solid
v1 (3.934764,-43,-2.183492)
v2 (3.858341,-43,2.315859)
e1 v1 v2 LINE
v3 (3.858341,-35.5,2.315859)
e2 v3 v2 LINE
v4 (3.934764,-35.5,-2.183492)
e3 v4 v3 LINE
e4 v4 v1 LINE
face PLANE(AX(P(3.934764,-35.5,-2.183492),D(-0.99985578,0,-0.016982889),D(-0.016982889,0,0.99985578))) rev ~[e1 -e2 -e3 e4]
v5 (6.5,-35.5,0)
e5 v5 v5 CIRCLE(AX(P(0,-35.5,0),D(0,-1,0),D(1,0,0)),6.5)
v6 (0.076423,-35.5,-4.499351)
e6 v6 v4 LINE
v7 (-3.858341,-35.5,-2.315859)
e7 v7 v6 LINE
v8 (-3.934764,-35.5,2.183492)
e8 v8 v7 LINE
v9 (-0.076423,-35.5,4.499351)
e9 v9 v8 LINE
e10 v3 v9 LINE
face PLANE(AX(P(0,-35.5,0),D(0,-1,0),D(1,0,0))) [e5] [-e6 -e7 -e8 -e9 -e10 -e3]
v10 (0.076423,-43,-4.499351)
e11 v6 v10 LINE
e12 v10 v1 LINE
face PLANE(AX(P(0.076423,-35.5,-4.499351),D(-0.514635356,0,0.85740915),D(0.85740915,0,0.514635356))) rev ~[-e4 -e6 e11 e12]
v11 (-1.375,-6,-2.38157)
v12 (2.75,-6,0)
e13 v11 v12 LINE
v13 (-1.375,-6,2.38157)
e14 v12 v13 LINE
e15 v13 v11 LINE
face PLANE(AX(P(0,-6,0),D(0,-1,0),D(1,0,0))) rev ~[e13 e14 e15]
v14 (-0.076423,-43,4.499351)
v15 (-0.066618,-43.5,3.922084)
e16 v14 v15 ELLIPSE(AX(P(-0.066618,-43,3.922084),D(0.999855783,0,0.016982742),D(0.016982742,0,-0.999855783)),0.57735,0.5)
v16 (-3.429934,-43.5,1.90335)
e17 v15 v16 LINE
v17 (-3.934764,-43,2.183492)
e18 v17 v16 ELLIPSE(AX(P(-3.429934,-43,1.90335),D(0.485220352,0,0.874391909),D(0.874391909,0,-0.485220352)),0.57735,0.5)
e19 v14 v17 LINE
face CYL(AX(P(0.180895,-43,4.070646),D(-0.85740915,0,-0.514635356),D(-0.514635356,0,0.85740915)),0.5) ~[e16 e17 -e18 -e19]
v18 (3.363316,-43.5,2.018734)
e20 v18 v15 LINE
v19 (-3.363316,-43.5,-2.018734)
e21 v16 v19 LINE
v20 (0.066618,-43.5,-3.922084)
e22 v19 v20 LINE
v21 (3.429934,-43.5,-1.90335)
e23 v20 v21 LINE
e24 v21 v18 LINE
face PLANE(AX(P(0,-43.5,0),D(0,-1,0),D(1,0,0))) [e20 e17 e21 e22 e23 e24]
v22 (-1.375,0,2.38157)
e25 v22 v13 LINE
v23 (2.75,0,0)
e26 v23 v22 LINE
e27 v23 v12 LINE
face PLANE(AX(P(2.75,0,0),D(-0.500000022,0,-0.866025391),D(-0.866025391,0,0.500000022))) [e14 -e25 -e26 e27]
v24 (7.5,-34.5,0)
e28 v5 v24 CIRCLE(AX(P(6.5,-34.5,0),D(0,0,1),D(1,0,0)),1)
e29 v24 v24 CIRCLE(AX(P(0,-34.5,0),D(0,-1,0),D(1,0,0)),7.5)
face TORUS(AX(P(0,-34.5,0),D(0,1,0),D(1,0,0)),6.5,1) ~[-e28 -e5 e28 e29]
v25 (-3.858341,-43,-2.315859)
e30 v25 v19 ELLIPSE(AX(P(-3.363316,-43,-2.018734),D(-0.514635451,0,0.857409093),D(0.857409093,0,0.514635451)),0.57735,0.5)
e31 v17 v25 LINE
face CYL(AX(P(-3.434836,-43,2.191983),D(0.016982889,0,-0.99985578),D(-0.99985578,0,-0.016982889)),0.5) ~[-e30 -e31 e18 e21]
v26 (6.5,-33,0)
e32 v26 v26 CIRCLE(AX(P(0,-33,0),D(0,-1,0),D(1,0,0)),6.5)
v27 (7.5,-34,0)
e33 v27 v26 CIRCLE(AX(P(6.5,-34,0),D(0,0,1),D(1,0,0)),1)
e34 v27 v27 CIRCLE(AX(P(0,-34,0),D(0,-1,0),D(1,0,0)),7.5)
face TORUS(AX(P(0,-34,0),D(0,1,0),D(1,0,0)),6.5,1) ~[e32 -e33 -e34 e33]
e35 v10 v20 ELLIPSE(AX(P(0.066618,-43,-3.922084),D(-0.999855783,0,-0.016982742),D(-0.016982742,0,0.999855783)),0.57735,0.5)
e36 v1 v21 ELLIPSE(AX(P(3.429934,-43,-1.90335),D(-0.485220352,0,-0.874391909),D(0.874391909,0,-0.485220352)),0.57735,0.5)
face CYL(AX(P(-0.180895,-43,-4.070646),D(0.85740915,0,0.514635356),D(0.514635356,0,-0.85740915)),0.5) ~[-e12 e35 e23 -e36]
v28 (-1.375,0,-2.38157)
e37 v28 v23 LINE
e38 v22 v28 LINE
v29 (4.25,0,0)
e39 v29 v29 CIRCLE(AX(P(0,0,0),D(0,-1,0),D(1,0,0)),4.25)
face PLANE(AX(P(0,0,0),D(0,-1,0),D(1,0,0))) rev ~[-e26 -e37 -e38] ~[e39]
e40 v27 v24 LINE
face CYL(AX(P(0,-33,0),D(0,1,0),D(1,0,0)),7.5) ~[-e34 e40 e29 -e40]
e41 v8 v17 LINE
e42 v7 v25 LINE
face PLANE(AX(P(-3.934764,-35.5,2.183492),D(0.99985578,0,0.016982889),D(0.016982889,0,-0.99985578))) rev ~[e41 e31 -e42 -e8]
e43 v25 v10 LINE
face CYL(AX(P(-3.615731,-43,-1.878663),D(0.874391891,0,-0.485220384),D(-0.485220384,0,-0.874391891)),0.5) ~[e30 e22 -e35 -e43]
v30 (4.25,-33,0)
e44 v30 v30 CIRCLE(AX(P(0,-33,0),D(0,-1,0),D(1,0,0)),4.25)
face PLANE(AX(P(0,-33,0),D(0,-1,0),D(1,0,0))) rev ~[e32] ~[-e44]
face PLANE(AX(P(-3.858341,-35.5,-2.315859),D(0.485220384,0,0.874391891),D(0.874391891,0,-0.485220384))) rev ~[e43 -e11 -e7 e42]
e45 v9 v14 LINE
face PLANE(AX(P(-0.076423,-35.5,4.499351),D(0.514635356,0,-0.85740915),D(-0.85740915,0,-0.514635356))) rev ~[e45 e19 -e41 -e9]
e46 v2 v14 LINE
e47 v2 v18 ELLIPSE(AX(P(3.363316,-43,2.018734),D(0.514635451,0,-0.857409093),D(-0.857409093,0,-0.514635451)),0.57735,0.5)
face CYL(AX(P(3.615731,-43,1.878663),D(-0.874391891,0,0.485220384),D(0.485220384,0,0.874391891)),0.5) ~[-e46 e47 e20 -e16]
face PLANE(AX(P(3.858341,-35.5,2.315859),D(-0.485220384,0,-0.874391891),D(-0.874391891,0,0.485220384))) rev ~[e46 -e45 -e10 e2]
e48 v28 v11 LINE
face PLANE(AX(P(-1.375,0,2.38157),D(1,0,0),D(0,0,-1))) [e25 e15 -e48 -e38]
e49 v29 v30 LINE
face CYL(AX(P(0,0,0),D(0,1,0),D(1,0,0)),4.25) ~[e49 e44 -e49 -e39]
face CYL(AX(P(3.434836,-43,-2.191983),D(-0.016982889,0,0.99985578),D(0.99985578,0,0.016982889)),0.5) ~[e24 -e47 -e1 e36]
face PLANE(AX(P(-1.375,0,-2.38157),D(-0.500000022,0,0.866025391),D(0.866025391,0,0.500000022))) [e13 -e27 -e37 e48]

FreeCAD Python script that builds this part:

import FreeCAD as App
import Part
import Sketcher
from FreeCAD import Vector
Q = App.Units.Quantity


def edges_at(feature, points):
    """Names of the edges that pass closest to the given points."""
    edges = feature.Shape.Edges
    near = lambda p: min(range(len(edges)), key=lambda i: edges[i].distToShape(Part.Vertex(*p))[0])
    return sorted({f"Edge{near(p) + 1}" for p in points})

doc = App.newDocument("Part")
body = doc.addObject("PartDesign::Body", "Body")

# Sketch on XZ plane
sketch1 = body.newObject("Sketcher::SketchObject", "Sketch")
sketch1.AttachmentSupport = (doc.getObject("XZ_Plane"), [""])
sketch1.MapMode = "FlatFace"
sketch1.addGeometry(Part.Circle(Vector(0, 0, 0), Vector(0, 0, 1), 4.2), False)
sketch1.addConstraint([
    Sketcher.Constraint("Coincident", 0, 3, -1, 1),
    Sketcher.Constraint("Diameter", 0, Q("8.5 mm")),
])
pad1 = body.newObject("PartDesign::Pad", "Pad")
pad1.Profile = sketch1
pad1.Length = 33

# Sketch on XZ plane
sketch2 = body.newObject("Sketcher::SketchObject", "Sketch001")
sketch2.AttachmentSupport = (doc.getObject("XZ_Plane"), [""])
sketch2.MapMode = "FlatFace"
sketch2.addGeometry([
    Part.LineSegment(Vector(-1.4, -2.4, 0), Vector(2.8, 0, 0)),
    Part.LineSegment(Vector(2.8, 0, 0), Vector(-1.4, 2.4, 0)),
    Part.LineSegment(Vector(-1.4, 2.4, 0), Vector(-1.4, -2.4, 0)),
], False)
sketch2.addConstraint([
    Sketcher.Constraint("Coincident", 0, 2, 1, 1),
    Sketcher.Constraint("Coincident", 1, 2, 2, 1),
    Sketcher.Constraint("Coincident", 2, 2, 0, 1),
    Sketcher.Constraint("Vertical", 2),
    Sketcher.Constraint("PointOnObject", 0, 2, -1),
    Sketcher.Constraint("Equal", 0, 1),
    Sketcher.Constraint("Angle", 0, Q("30.000001 deg")),
    Sketcher.Constraint("DistanceX", -1, 1, 0, 2, Q("2.75 mm")),
    Sketcher.Constraint("DistanceX", 1, 2, -1, 1, Q("1.375 mm")),
])
pocket1 = body.newObject("PartDesign::Pocket", "Pocket")
pocket1.Profile = sketch2
pocket1.Length = 6
pocket1.Reversed = True

# Sketch on XZ plane
sketch3 = body.newObject("Sketcher::SketchObject", "Sketch002")
sketch3.AttachmentSupport = (doc.getObject("XZ_Plane"), [""])
sketch3.MapMode = "FlatFace"
sketch3.AttachmentOffset = App.Placement(Vector(0, 0, 33), App.Rotation())
sketch3.addGeometry(Part.Circle(Vector(0, 0, 0), Vector(0, 0, 1), 8), False)
sketch3.addConstraint([
    Sketcher.Constraint("Coincident", 0, 3, -1, 1),
    Sketcher.Constraint("Diameter", 0, Q("15 mm")),
])
pad2 = body.newObject("PartDesign::Pad", "Pad001")
pad2.Profile = sketch3
pad2.Length = 2.5

# Sketch on XZ plane
sketch4 = body.newObject("Sketcher::SketchObject", "Sketch003")
sketch4.AttachmentSupport = (doc.getObject("XZ_Plane"), [""])
sketch4.MapMode = "FlatFace"
sketch4.AttachmentOffset = App.Placement(Vector(0, 0, 35.5), App.Rotation())
sketch4.addGeometry([
    Part.LineSegment(Vector(0.1, -4.5, 0), Vector(3.9, -2.2, 0)),  # 0
    Part.LineSegment(Vector(3.9, -2.2, 0), Vector(3.9, 2.3, 0)),  # 1
    Part.LineSegment(Vector(3.9, 2.3, 0), Vector(-0.1, 4.5, 0)),  # 2
    Part.LineSegment(Vector(-0.1, 4.5, 0), Vector(-3.9, 2.2, 0)),  # 3
    Part.LineSegment(Vector(-3.9, 2.2, 0), Vector(-3.9, -2.3, 0)),  # 4
    Part.LineSegment(Vector(-3.9, -2.3, 0), Vector(0.1, -4.5, 0)),  # 5
], False)
sketch4.addConstraint([
    Sketcher.Constraint("Coincident", 0, 2, 1, 1),
    Sketcher.Constraint("Coincident", 1, 2, 2, 1),
    Sketcher.Constraint("Coincident", 2, 2, 3, 1),
    Sketcher.Constraint("Coincident", 3, 2, 4, 1),
    Sketcher.Constraint("Coincident", 4, 2, 5, 1),
    Sketcher.Constraint("Coincident", 5, 2, 0, 1),
    Sketcher.Constraint("Symmetric", 0, 2, 3, 2, -1, 1),
    Sketcher.Constraint("Symmetric", 1, 2, 4, 2, -1, 1),
    Sketcher.Constraint("Symmetric", 2, 2, 5, 2, -1, 1),
    Sketcher.Constraint("Equal", 0, 1),
    Sketcher.Constraint("Equal", 1, 2),
    Sketcher.Constraint("Distance", 0, Q("4.5 mm")),
    Sketcher.Constraint("DistanceX", -1, 1, 1, 2, Q("3.858341 mm")),
    Sketcher.Constraint("DistanceY", -1, 1, 1, 2, Q("2.315859 mm")),
    Sketcher.Constraint("DistanceY", -1, 1, 2, 2, Q("4.499351 mm")),
])
pad3 = body.newObject("PartDesign::Pad", "Pad002")
pad3.Profile = sketch4
pad3.Length = 8
doc.recompute()

fillet = body.newObject("PartDesign::Fillet", "Fillet")
fillet.Base = (pad3, edges_at(pad3, [
    (2.006, -43.5, -3.341),
    (-1.891, -43.5, -3.408),
    (-3.897, -43.5, -0.066),
    (-2.006, -43.5, 3.341),
    (1.891, -43.5, 3.408),
    (3.897, -43.5, 0.066),
]))
fillet.Radius = 0.5
doc.recompute()

fillet2 = body.newObject("PartDesign::Fillet", "Fillet001")
fillet2.Base = (fillet, edges_at(fillet, [(-7.5, -35.5, 0), (-7.5, -33, 0)]))
fillet2.Radius = 1

doc.recompute()
